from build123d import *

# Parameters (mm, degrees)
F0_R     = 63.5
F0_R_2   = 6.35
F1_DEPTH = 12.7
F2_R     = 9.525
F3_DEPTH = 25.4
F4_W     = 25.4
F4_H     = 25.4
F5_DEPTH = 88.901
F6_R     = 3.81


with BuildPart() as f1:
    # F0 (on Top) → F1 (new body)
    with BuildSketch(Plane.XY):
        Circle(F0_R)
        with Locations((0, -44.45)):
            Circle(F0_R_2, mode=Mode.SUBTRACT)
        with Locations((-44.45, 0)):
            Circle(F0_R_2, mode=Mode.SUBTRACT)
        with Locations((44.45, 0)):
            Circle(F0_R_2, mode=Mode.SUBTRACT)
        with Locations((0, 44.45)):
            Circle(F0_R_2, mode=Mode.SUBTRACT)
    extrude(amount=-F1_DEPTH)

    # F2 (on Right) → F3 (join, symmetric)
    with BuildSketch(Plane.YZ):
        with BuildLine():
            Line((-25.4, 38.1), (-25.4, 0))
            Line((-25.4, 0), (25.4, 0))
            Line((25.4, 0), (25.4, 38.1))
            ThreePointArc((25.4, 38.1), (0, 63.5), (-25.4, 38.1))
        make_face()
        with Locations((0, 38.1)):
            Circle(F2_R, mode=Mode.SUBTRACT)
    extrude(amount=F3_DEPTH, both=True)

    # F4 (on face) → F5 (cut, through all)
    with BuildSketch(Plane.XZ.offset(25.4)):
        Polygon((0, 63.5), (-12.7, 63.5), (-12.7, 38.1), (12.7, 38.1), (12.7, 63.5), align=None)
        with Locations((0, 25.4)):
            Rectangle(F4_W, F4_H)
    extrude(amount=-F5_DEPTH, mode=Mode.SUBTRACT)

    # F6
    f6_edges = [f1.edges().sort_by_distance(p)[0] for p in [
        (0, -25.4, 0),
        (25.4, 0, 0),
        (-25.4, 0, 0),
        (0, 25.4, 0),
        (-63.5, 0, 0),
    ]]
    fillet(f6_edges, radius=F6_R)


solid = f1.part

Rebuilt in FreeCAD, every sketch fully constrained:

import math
import FreeCAD as App
import Part
import Sketcher
Q = App.Units.Quantity


def edges_at(feature, points):
    """Names of the edges that pass closest to the given points."""
    edges = feature.Shape.Edges
    near = lambda p: min(range(len(edges)), key=lambda i: edges[i].distToShape(Part.Vertex(*p))[0])
    return sorted({f"Edge{near(p) + 1}" for p in points})

doc = App.newDocument("Part")
body = doc.addObject("PartDesign::Body", "Body")

sketch1 = body.newObject("Sketcher::SketchObject", "Sketch")
sketch1.AttachmentSupport = (doc.getObject("XY_Plane"), [""])
sketch1.MapMode = "FlatFace"
sketch1.addGeometry(Part.Circle(App.Vector(0, 0, 0), App.Vector(0, 0, 1), 64), False)
sketch1.addGeometry(Part.Circle(App.Vector(0, -44, 0), App.Vector(0, 0, 1), 6), False)
sketch1.addGeometry(Part.Circle(App.Vector(-44, 0, 0), App.Vector(0, 0, 1), 6), False)
sketch1.addGeometry(Part.Circle(App.Vector(44, 0, 0), App.Vector(0, 0, 1), 6), False)
sketch1.addGeometry(Part.Circle(App.Vector(0, 44, 0), App.Vector(0, 0, 1), 6), False)
sketch1.addConstraint(Sketcher.Constraint("Coincident", 0, 3, -1, 1))
sketch1.addConstraint(Sketcher.Constraint("Equal", 1, 2))
sketch1.addConstraint(Sketcher.Constraint("Equal", 2, 3))
sketch1.addConstraint(Sketcher.Constraint("Equal", 3, 4))
sketch1.addConstraint(Sketcher.Constraint("Symmetric", 2, 3, 3, 3, -1, 1))
sketch1.addConstraint(Sketcher.Constraint("Symmetric", 1, 3, 4, 3, -1, 1))
sketch1.addConstraint(Sketcher.Constraint("PointOnObject", 1, 3, -2))
sketch1.addConstraint(Sketcher.Constraint("PointOnObject", 2, 3, -1))
sketch1.addConstraint(Sketcher.Constraint("Diameter", 0, Q("5 in")))
sketch1.addConstraint(Sketcher.Constraint("Diameter", 1, Q("0.5 in")))
sketch1.addConstraint(Sketcher.Constraint("DistanceX", 2, 3, 3, 3, Q("3.5 in")))
sketch1.addConstraint(Sketcher.Constraint("DistanceY", 1, 3, 4, 3, Q("3.5 in")))
pad1 = body.newObject("PartDesign::Pad", "Pad")
pad1.Profile = sketch1
pad1.Length = Q("0.5 in")
pad1.Reversed = True

sketch2 = body.newObject("Sketcher::SketchObject", "Sketch001")
sketch2.AttachmentSupport = (doc.getObject("YZ_Plane"), [""])
sketch2.MapMode = "FlatFace"
sketch2.addGeometry(Part.LineSegment(App.Vector(-25, 38, 0), App.Vector(-25, 0, 0)), False)
sketch2.addGeometry(Part.LineSegment(App.Vector(-25, 0, 0), App.Vector(25, 0, 0)), False)
sketch2.addGeometry(Part.LineSegment(App.Vector(25, 0, 0), App.Vector(25, 38, 0)), False)
sketch2.addGeometry(Part.ArcOfCircle(Part.Circle(App.Vector(0, 38, 0), App.Vector(0, 0, 1), 25), math.radians(0), math.radians(180)), False)
sketch2.addGeometry(Part.Circle(App.Vector(0, 38, 0), App.Vector(0, 0, 1), 10), False)
sketch2.addConstraint(Sketcher.Constraint("Coincident", 0, 2, 1, 1))
sketch2.addConstraint(Sketcher.Constraint("Coincident", 1, 2, 2, 1))
sketch2.addConstraint(Sketcher.Constraint("Tangent", 2, 2, 3, 1))
sketch2.addConstraint(Sketcher.Constraint("Tangent", 3, 2, 0, 1))
sketch2.addConstraint(Sketcher.Constraint("Vertical", 0))
sketch2.addConstraint(Sketcher.Constraint("Horizontal", 1))
sketch2.addConstraint(Sketcher.Constraint("Vertical", 2))
sketch2.addConstraint(Sketcher.Constraint("Coincident", 4, 3, 3, 3))
sketch2.addConstraint(Sketcher.Constraint("Symmetric", 0, 2, 1, 2, -1, 1))
sketch2.addConstraint(Sketcher.Constraint("Radius", 3, Q("1 in")))
sketch2.addConstraint(Sketcher.Constraint("Diameter", 4, Q("0.75 in")))
sketch2.addConstraint(Sketcher.Constraint("DistanceY", 0, 2, 0, 1, Q("1.5 in")))
pad2 = body.newObject("PartDesign::Pad", "Pad001")
pad2.Profile = sketch2
pad2.Length = Q("2 in")
pad2.Midplane = True

sketch3 = body.newObject("Sketcher::SketchObject", "Sketch002")
sketch3.AttachmentSupport = (doc.getObject("XZ_Plane"), [""])
sketch3.MapMode = "FlatFace"
sketch3.AttachmentOffset = App.Placement(App.Vector(0, 0, 1 * 25.4), App.Rotation())
sketch3.addGeometry(Part.LineSegment(App.Vector(-13, 64, 0), App.Vector(-13, 13, 0)), False)
sketch3.addGeometry(Part.LineSegment(App.Vector(-13, 13, 0), App.Vector(13, 13, 0)), False)
sketch3.addGeometry(Part.LineSegment(App.Vector(13, 13, 0), App.Vector(13, 64, 0)), False)
sketch3.addGeometry(Part.LineSegment(App.Vector(13, 64, 0), App.Vector(-13, 64, 0)), False)
sketch3.addConstraint(Sketcher.Constraint("Coincident", 0, 2, 1, 1))
sketch3.addConstraint(Sketcher.Constraint("Coincident", 1, 2, 2, 1))
sketch3.addConstraint(Sketcher.Constraint("Coincident", 2, 2, 3, 1))
sketch3.addConstraint(Sketcher.Constraint("Coincident", 3, 2, 0, 1))
sketch3.addConstraint(Sketcher.Constraint("Vertical", 0))
sketch3.addConstraint(Sketcher.Constraint("Horizontal", 1))
sketch3.addConstraint(Sketcher.Constraint("Vertical", 2))
sketch3.addConstraint(Sketcher.Constraint("Horizontal", 3))
sketch3.addConstraint(Sketcher.Constraint("DistanceX", 1, 1, 1, 2, Q("1 in")))
sketch3.addConstraint(Sketcher.Constraint("DistanceY", 0, 2, 0, 1, Q("2 in")))
sketch3.addConstraint(Sketcher.Constraint("DistanceX", 0, 2, -1, 1, Q("0.5 in")))
sketch3.addConstraint(Sketcher.Constraint("DistanceY", -1, 1, 0, 2, Q("0.5 in")))
pocket1 = body.newObject("PartDesign::Pocket", "Pocket")
pocket1.Profile = sketch3
pocket1.Type = "ThroughAll"
doc.recompute()

fillet = body.newObject("PartDesign::Fillet", "Fillet")
fillet.Base = (pocket1, edges_at(pocket1, [
    (0, -25.4, 0),
    (25.4, 0, 0),
    (-25.4, 0, 0),
    (0, 25.4, 0),
    (-63.5, 0, 0),
]))
fillet.Radius = Q("0.15 in")

doc.recompute()
